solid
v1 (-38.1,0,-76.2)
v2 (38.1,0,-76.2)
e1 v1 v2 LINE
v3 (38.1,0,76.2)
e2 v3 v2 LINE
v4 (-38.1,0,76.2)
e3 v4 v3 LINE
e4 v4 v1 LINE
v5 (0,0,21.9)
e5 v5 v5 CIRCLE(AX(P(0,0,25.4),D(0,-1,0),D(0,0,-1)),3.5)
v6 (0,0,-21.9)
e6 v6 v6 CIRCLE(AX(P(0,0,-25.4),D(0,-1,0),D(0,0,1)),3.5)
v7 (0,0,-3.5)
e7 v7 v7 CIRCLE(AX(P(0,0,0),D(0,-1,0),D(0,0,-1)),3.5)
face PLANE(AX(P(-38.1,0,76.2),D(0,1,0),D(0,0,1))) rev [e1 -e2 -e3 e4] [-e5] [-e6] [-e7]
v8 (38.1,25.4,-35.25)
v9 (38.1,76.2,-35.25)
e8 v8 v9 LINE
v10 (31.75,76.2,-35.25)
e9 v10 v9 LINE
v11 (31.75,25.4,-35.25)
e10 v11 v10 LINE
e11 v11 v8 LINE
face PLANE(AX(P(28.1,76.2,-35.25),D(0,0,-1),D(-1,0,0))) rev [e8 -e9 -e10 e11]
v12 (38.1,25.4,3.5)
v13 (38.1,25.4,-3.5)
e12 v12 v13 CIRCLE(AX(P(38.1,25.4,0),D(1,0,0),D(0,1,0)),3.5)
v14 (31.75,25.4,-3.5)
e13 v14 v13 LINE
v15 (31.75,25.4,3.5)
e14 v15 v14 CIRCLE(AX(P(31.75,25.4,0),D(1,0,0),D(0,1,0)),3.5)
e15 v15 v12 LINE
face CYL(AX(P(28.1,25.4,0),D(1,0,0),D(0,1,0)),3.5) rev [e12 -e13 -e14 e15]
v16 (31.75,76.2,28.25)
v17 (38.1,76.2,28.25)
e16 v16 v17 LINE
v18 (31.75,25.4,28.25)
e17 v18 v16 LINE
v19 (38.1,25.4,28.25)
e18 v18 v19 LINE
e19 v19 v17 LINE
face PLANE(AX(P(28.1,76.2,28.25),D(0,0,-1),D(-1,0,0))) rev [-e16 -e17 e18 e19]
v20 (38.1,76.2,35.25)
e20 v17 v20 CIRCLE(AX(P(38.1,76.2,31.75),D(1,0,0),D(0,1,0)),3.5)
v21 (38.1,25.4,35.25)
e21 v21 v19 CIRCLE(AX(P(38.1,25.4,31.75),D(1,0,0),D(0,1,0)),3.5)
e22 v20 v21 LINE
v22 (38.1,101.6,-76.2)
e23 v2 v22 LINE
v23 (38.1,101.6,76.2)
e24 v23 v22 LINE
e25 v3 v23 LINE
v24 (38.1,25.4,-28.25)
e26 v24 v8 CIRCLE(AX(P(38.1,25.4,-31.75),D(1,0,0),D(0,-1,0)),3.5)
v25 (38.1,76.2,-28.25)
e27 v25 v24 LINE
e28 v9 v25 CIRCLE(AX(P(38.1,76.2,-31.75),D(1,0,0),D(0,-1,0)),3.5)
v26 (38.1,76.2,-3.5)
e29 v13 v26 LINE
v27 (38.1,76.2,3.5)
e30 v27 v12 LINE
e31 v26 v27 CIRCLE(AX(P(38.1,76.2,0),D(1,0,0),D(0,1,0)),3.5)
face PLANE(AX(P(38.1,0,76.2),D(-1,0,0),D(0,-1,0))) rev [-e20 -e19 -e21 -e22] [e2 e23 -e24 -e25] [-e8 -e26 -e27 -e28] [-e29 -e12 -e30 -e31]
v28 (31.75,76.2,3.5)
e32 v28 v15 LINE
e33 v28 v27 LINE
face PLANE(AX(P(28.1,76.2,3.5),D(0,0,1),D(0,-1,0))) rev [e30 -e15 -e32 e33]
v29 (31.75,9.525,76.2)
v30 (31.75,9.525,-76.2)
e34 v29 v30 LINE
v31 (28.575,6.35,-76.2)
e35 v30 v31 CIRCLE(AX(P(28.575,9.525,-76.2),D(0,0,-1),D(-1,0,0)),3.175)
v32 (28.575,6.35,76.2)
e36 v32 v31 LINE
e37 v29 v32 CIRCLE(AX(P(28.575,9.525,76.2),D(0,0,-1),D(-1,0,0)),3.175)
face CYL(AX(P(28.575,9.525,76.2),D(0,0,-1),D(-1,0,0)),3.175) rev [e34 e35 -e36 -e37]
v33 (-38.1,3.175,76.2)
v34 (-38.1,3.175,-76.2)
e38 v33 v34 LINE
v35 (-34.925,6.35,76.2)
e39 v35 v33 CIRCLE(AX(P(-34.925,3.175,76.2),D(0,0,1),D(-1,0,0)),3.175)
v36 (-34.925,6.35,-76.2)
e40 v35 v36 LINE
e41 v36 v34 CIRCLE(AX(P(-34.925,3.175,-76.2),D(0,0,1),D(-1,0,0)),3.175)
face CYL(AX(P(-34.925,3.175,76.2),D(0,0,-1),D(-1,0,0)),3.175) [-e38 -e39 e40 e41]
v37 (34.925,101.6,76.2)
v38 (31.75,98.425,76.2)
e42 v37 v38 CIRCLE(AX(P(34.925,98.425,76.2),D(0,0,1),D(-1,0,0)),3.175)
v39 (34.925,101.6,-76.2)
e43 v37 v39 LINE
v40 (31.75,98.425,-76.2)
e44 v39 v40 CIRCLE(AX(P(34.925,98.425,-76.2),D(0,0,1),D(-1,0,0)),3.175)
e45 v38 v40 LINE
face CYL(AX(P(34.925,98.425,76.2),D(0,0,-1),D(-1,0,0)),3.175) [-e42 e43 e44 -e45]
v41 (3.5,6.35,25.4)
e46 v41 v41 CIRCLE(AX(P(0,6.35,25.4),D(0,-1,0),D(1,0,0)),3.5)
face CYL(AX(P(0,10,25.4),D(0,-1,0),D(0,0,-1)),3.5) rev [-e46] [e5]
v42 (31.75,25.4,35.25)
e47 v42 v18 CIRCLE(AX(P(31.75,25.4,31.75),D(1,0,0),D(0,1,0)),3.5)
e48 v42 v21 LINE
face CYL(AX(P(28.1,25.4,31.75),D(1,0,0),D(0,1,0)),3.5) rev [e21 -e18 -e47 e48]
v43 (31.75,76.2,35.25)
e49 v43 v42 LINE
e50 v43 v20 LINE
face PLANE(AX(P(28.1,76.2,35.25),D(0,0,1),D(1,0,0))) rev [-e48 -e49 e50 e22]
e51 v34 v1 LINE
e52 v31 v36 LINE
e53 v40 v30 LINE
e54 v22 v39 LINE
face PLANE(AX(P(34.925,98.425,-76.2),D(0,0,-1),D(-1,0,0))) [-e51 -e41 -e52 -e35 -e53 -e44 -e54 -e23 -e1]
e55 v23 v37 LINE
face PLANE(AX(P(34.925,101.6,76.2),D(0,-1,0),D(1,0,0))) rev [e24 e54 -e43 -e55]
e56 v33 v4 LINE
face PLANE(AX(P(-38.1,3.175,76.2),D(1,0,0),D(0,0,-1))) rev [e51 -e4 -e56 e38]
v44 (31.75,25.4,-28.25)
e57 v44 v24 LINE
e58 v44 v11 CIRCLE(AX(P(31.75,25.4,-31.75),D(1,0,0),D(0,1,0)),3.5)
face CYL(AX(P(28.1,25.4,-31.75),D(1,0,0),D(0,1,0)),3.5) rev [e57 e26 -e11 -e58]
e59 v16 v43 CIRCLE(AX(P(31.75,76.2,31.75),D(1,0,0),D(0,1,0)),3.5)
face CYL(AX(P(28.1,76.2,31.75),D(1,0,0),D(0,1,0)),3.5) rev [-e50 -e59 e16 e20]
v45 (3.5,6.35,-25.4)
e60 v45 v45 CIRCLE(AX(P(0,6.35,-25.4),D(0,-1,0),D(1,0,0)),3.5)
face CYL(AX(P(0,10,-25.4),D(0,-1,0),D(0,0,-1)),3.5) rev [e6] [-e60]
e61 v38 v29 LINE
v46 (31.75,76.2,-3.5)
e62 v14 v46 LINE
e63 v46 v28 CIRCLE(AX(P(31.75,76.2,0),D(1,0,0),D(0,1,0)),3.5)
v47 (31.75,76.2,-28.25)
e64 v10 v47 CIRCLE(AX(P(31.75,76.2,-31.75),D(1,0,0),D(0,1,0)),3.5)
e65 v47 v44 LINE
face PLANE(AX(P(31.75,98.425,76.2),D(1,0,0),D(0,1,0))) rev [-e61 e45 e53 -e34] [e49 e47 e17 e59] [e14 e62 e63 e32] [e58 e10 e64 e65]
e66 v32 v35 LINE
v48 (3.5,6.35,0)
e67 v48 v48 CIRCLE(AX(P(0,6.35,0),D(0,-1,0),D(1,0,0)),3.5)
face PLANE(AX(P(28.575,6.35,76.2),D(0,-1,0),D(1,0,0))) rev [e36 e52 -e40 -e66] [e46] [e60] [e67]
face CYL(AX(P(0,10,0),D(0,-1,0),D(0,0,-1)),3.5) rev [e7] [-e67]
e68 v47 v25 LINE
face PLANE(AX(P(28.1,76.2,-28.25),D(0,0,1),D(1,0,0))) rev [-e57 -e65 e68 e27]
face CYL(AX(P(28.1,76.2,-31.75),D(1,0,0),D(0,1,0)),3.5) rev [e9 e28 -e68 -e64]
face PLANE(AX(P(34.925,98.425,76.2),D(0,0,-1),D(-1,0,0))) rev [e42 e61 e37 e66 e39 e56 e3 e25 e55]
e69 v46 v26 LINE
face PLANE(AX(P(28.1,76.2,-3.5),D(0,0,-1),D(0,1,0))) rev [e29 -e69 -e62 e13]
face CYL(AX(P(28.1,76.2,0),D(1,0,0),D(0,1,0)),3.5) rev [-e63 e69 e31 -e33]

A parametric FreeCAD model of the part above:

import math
import FreeCAD as App
import Part
import Sketcher
from FreeCAD import Vector
Q = App.Units.Quantity

doc = App.newDocument("Part")
body = doc.addObject("PartDesign::Body", "Body")

sketch1 = body.newObject("Sketcher::SketchObject", "Sketch")
sketch1.AttachmentSupport = (doc.getObject("XY_Plane"), [""])
sketch1.MapMode = "FlatFace"
sketch1.addGeometry([
    Part.LineSegment(Vector(-38.1, 0, 0), Vector(38.1, 0, 0)),
    Part.LineSegment(Vector(38.1, 0, 0), Vector(38.1, 101.6, 0)),
    Part.LineSegment(Vector(38.1, 101.6, 0), Vector(34.9, 101.6, 0)),
    Part.ArcOfCircle(Part.Circle(Vector(34.9, 98.4, 0), Vector(0, 0, 1), 3.2), math.radians(90), math.radians(180)),
    Part.LineSegment(Vector(31.8, 98.4, 0), Vector(31.8, 9.5, 0)),
    Part.ArcOfCircle(Part.Circle(Vector(28.6, 9.5, 0), Vector(0, 0, 1), 3.2), math.radians(-90), math.radians(0)),
    Part.LineSegment(Vector(28.6, 6.3, 0), Vector(-34.9, 6.3, 0)),
    Part.ArcOfCircle(Part.Circle(Vector(-34.9, 3.2, 0), Vector(0, 0, 1), 3.2), math.radians(90), math.radians(180)),
    Part.LineSegment(Vector(-38.1, 3.2, 0), Vector(-38.1, 0, 0)),
], False)
sketch1.addConstraint([
    Sketcher.Constraint("Coincident", 0, 2, 1, 1),
    Sketcher.Constraint("Coincident", 1, 2, 2, 1),
    Sketcher.Constraint("Tangent", 2, 2, 3, 1),
    Sketcher.Constraint("Tangent", 3, 2, 4, 1),
    Sketcher.Constraint("Tangent", 4, 2, 5, 2),
    Sketcher.Constraint("Tangent", 5, 1, 6, 1),
    Sketcher.Constraint("Tangent", 6, 2, 7, 1),
    Sketcher.Constraint("Tangent", 7, 2, 8, 1),
    Sketcher.Constraint("Coincident", 8, 2, 0, 1),
    Sketcher.Constraint("Horizontal", 0),
    Sketcher.Constraint("Vertical", 1),
    Sketcher.Constraint("Horizontal", 2),
    Sketcher.Constraint("Vertical", 4),
    Sketcher.Constraint("Horizontal", 6),
    Sketcher.Constraint("Vertical", 8),
    Sketcher.Constraint("Equal", 3, 5),
    Sketcher.Constraint("Equal", 5, 7),
    Sketcher.Constraint("Symmetric", 0, 2, 8, 2, -1, 1),
    Sketcher.Constraint("Equal", 2, 8),
    Sketcher.Constraint("DistanceX", 0, 1, 0, 2, Q("3 in")),
    Sketcher.Constraint("DistanceY", 1, 1, 1, 2, Q("4 in")),
    Sketcher.Constraint("DistanceX", 6, 2, 6, 1, Q("2.5 in")),
    Sketcher.Constraint("Radius", 3, Q("0.125 in")),
])
pad1 = body.newObject("PartDesign::Pad", "Pad")
pad1.Profile = sketch1
pad1.Length = Q("6 in")
pad1.Midplane = True

sketch2 = body.newObject("Sketcher::SketchObject", "Sketch001")
sketch2.AttachmentSupport = (doc.getObject("YZ_Plane"), [""])
sketch2.MapMode = "FlatFace"
sketch2.AttachmentOffset = App.Placement(Vector(0, 0, 1.5 * 25.4), App.Rotation())
sketch2.addGeometry([
    Part.LineSegment(Vector(25.4, 28.2, 0), Vector(76.2, 28.2, 0)),
    Part.ArcOfCircle(Part.Circle(Vector(76.2, 31.8, 0), Vector(0, 0, 1), 3.5), math.radians(-90), math.radians(90)),
    Part.LineSegment(Vector(76.2, 35.2, 0), Vector(25.4, 35.2, 0)),
    Part.ArcOfCircle(Part.Circle(Vector(25.4, 31.8, 0), Vector(0, 0, 1), 3.5), math.radians(90), math.radians(270)),
    Part.LineSegment(Vector(76.2, -28.2, 0), Vector(25.4, -28.2, 0)),
    Part.ArcOfCircle(Part.Circle(Vector(25.4, -31.8, 0), Vector(0, 0, 1), 3.5), math.radians(90), math.radians(270)),
    Part.LineSegment(Vector(25.4, -35.2, 0), Vector(76.2, -35.2, 0)),
    Part.ArcOfCircle(Part.Circle(Vector(76.2, -31.8, 0), Vector(0, 0, 1), 3.5), math.radians(-90), math.radians(90)),
    Part.LineSegment(Vector(25.4, -3.5, 0), Vector(76.2, -3.5, 0)),
    Part.ArcOfCircle(Part.Circle(Vector(76.2, 0, 0), Vector(0, 0, 1), 3.5), math.radians(-90), math.radians(90)),
    Part.LineSegment(Vector(76.2, 3.5, 0), Vector(25.4, 3.5, 0)),
    Part.ArcOfCircle(Part.Circle(Vector(25.4, 0, 0), Vector(0, 0, 1), 3.5), math.radians(90), math.radians(270)),
], False)
sketch2.addConstraint([
    Sketcher.Constraint("Tangent", 0, 2, 1, 1),
    Sketcher.Constraint("Tangent", 1, 2, 2, 1),
    Sketcher.Constraint("Tangent", 2, 2, 3, 1),
    Sketcher.Constraint("Tangent", 3, 2, 0, 1),
    Sketcher.Constraint("Tangent", 4, 2, 5, 1),
    Sketcher.Constraint("Tangent", 5, 2, 6, 1),
    Sketcher.Constraint("Tangent", 6, 2, 7, 1),
    Sketcher.Constraint("Tangent", 7, 2, 4, 1),
    Sketcher.Constraint("Tangent", 8, 2, 9, 1),
    Sketcher.Constraint("Tangent", 9, 2, 10, 1),
    Sketcher.Constraint("Tangent", 10, 2, 11, 1),
    Sketcher.Constraint("Tangent", 11, 2, 8, 1),
    Sketcher.Constraint("Horizontal", 0),
    Sketcher.Constraint("Horizontal", 2),
    Sketcher.Constraint("Horizontal", 4),
    Sketcher.Constraint("Horizontal", 6),
    Sketcher.Constraint("Horizontal", 8),
    Sketcher.Constraint("Horizontal", 10),
    Sketcher.Constraint("Equal", 3, 5),
    Sketcher.Constraint("Equal", 7, 9),
    Sketcher.Constraint("Symmetric", 3, 3, 5, 3, -1),
    Sketcher.Constraint("PointOnObject", 9, 3, -1),
    Sketcher.Constraint("Vertical", 1, 3, 7, 3),
    Sketcher.Constraint("Vertical", 7, 3, 9, 3),
    Sketcher.Constraint("Vertical", 5, 3, 11, 3),
    Sketcher.Constraint("DistanceX", 0, 1, 0, 2, Q("2 in")),
    Sketcher.Constraint("DistanceX", -1, 1, 1, 3, Q("3 in")),
    Sketcher.Constraint("DistanceY", 5, 3, 3, 3, Q("2.5 in")),
    Sketcher.Constraint("Radius", 1, 3.5),
])
pocket1 = body.newObject("PartDesign::Pocket", "Pocket")
pocket1.Profile = sketch2
pocket1.Length = 10

sketch3 = body.newObject("Sketcher::SketchObject", "Sketch002")
sketch3.AttachmentSupport = (doc.getObject("XZ_Plane"), [""])
sketch3.MapMode = "FlatFace"
sketch3.addGeometry([
    Part.Circle(Vector(0, 25.4, 0), Vector(0, 0, 1), 3.5),
    Part.Circle(Vector(0, -25.4, 0), Vector(0, 0, 1), 3.5),
    Part.Circle(Vector(0, 0, 0), Vector(0, 0, 1), 3.5),
], False)
sketch3.addConstraint([
    Sketcher.Constraint("Coincident", 2, 3, -1, 1),
    Sketcher.Constraint("Equal", 0, 1),
    Sketcher.Constraint("Equal", 1, 2),
    Sketcher.Constraint("Symmetric", 0, 3, 1, 3, -1, 1),
    Sketcher.Constraint("PointOnObject", 0, 3, -2),
    Sketcher.Constraint("DistanceY", -1, 1, 0, 3, Q("1 in")),
    Sketcher.Constraint("Diameter", 0, 7.0),
])
pocket2 = body.newObject("PartDesign::Pocket", "Pocket001")
pocket2.Profile = sketch3
pocket2.Length = 10

doc.recompute()
